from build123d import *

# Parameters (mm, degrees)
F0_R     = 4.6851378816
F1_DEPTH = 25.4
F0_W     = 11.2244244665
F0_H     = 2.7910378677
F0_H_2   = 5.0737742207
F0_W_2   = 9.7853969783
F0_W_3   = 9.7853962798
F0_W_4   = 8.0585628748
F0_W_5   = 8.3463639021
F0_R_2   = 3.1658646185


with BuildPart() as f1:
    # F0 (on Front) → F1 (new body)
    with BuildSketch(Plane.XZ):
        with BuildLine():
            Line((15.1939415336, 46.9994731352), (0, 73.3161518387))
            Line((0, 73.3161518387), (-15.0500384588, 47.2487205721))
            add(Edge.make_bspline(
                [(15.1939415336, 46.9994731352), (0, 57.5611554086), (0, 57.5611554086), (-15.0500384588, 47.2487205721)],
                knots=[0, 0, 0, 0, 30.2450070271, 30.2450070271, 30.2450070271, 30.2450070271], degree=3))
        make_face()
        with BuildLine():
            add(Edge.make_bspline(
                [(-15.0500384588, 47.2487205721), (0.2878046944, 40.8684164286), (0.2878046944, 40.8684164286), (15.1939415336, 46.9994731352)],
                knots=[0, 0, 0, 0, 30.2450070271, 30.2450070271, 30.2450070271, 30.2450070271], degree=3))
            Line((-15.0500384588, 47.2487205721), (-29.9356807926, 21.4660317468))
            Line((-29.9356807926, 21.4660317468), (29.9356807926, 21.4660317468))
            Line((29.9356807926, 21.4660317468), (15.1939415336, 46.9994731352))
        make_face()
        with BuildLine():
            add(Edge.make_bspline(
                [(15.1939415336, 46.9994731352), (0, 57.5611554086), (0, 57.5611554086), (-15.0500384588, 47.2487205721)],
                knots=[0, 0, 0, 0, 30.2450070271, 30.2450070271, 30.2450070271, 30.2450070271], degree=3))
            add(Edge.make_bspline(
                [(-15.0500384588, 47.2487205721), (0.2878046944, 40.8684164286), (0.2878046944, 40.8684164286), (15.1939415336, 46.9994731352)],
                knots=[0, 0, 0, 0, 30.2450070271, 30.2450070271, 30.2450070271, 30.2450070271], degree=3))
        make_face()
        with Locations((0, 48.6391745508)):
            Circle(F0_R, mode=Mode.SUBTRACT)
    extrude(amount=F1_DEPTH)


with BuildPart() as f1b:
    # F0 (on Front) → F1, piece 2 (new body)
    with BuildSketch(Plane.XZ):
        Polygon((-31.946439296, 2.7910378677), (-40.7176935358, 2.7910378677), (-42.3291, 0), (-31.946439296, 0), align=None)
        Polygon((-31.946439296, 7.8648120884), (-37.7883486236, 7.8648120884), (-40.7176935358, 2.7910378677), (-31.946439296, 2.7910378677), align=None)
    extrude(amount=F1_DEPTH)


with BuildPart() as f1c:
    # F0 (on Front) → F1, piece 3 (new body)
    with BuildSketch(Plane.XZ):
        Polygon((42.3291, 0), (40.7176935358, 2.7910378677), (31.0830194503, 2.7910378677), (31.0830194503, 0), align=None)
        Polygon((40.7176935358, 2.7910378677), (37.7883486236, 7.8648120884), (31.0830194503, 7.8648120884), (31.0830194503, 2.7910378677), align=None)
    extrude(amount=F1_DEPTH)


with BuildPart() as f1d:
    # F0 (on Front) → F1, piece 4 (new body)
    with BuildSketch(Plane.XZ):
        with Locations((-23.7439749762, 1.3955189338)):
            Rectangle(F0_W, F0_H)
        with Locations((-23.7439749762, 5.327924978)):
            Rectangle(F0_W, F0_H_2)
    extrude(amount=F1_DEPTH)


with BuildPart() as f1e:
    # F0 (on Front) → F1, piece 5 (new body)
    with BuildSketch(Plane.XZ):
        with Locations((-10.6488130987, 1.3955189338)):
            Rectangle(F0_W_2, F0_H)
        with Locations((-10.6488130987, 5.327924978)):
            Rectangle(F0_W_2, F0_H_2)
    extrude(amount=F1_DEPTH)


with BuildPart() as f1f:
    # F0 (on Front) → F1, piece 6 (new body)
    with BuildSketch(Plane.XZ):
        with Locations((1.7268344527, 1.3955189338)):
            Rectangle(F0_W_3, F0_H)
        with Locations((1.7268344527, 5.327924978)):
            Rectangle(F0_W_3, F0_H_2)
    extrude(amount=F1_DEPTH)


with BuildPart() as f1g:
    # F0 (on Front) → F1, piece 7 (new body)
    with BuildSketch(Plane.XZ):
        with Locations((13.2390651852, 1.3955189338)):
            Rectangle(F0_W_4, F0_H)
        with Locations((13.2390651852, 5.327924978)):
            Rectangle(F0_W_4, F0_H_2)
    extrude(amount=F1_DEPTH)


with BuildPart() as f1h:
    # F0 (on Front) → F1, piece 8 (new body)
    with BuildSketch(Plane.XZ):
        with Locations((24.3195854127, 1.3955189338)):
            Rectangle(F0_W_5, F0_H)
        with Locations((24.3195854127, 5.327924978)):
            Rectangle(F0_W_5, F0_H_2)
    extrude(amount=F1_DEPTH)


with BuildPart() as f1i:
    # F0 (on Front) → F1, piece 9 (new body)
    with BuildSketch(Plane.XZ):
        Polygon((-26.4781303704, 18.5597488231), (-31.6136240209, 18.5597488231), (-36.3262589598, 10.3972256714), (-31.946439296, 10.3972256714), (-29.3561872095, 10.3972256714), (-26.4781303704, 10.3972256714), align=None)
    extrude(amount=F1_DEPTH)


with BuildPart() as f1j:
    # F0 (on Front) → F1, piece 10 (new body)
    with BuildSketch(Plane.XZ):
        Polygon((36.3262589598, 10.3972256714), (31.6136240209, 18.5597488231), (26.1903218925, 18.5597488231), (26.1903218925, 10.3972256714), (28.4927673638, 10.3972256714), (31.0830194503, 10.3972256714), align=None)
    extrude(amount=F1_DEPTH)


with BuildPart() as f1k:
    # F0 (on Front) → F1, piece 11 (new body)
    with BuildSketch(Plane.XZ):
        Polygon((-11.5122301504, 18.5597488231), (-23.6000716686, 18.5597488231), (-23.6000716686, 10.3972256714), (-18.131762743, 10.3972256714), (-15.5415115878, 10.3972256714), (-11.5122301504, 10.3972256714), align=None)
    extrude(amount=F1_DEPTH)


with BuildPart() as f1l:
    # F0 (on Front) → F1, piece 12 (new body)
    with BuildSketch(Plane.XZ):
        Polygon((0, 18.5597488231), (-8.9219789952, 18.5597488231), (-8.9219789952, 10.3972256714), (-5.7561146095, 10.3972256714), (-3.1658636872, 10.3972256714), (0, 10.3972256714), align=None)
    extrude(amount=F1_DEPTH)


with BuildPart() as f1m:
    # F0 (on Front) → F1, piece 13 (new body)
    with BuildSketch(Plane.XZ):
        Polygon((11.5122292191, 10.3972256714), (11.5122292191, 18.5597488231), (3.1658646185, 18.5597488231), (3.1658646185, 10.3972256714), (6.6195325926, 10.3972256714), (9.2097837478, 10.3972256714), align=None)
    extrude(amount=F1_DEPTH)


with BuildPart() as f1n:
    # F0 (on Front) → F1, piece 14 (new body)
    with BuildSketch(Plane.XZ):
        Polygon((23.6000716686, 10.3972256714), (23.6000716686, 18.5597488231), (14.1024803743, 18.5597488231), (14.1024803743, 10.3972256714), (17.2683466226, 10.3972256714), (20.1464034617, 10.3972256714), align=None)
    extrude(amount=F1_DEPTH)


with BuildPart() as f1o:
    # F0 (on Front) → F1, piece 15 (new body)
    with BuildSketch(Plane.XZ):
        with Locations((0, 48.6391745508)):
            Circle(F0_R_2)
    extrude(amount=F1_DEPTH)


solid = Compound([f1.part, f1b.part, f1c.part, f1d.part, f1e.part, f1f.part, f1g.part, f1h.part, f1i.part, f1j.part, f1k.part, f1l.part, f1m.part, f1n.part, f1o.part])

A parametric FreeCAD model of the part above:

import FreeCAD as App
import Part
import Sketcher

V = App.Vector
Q = App.Units.Quantity


def add_polygon(sketch, points):
    """Adds a closed chain of lines whose ends are joined by coincident constraints."""
    first, n = sketch.GeometryCount, len(points)
    for a, b in zip(points, points[1:] + points[:1]):
        sketch.addGeometry(Part.LineSegment(App.Vector(*a, 0), App.Vector(*b, 0)), False)
    for i in range(n):
        sketch.addConstraint(Sketcher.Constraint("Coincident", first + i, 2, first + (i + 1) % n, 1))

doc = App.newDocument("Part")
params = doc.addObject("Spreadsheet::Sheet", "Params")
for row, (alias, value) in enumerate([
    ("pad1_length", "1 in"),
    ("pad2_length", "1 in"),
    ("pad3_length", "1 in"),
    ("pad4_length", "1 in"),
    ("pad5_length", "1 in"),
    ("pad6_length", "1 in"),
    ("pad7_length", "1 in"),
    ("pad8_length", "1 in"),
    ("pad9_length", "1 in"),
    ("pad10_length", "1 in"),
    ("pad11_length", "1 in"),
    ("pad12_length", "1 in"),
    ("pad13_length", "1 in"),
    ("pad14_length", "1 in"),
    ("pad15_length", "1 in"),
], start=1):
    params.set(f"A{row}", alias)
    params.set(f"B{row}", "=" + value)
    params.setAlias(f"B{row}", alias)

body = doc.addObject("PartDesign::Body", "Body")

# Sketch on XZ plane
sketch1 = body.newObject("Sketcher::SketchObject", "Sketch")
sketch1.AttachmentSupport = (doc.getObject("XZ_Plane"), [""])
sketch1.MapMode = "FlatFace"
add_polygon(sketch1, [(15.2, 47), (0, 73.3), (-15.1, 47.2), (-29.9, 21.5), (29.9, 21.5)])  # lines 0-4
sketch1.addGeometry(Part.Circle(V(0, 48.6, 0), V(0, 0, 1), 4.7), False)  # 5
sketch1.addConstraint([
    Sketcher.Constraint("Horizontal", 3),
    Sketcher.Constraint("PointOnObject", 5, 3, -2),
    Sketcher.Constraint("PointOnObject", 0, 2, -2),
    Sketcher.Constraint("Parallel", 1, 2),
    Sketcher.Constraint("Parallel", 0, 4),
    Sketcher.Constraint("Angle", 0, Q("120 deg")),
    Sketcher.Constraint("Angle", 1, Q("-120 deg")),
    Sketcher.Constraint("Diameter", 5, 9.370276),
    Sketcher.Constraint("DistanceX", 3, 1, 3, 2, 59.871362),
    Sketcher.Constraint("DistanceY", 4, 2, 5, 3, 1.639701),
    Sketcher.Constraint("Distance", 4, 29.483479),
    Sketcher.Constraint("DistanceY", -1, 1, 0, 2, 73.316152),
    Sketcher.Constraint("DistanceX", 1, 2, -1, 1, 15.050038),
])
pad1 = body.newObject("PartDesign::Pad", "Pad")
pad1.Profile = sketch1
pad1.setExpression("Length", "Params.pad1_length")
body2 = doc.addObject("PartDesign::Body", "Body001")

# Sketch on XZ plane
sketch2 = body2.newObject("Sketcher::SketchObject", "Sketch001")
sketch2.AttachmentSupport = (doc.getObject("XZ_Plane001"), [""])
sketch2.MapMode = "FlatFace"
add_polygon(sketch2, [(-40.7, 2.8), (-42.3, 0), (-31.9, 0), (-31.9, 7.9), (-37.8, 7.9)])  # lines 0-4
sketch2.addConstraint([
    Sketcher.Constraint("Horizontal", 1),
    Sketcher.Constraint("Vertical", 2),
    Sketcher.Constraint("Horizontal", 3),
    Sketcher.Constraint("PointOnObject", 0, 2, -1),
    Sketcher.Constraint("Parallel", 0, 4),
    Sketcher.Constraint("Angle", 0, Q("-120 deg")),
    Sketcher.Constraint("DistanceX", 0, 2, -1, 1, Q("1.6665 in")),
    Sketcher.Constraint("DistanceX", 1, 1, 1, 2, 10.382661),
    Sketcher.Constraint("DistanceX", 3, 2, 3, 1, 5.841909),
    Sketcher.Constraint("Distance", 4, 5.85869),
])
pad2 = body2.newObject("PartDesign::Pad", "Pad001")
pad2.Profile = sketch2
pad2.setExpression("Length", "Params.pad2_length")
body3 = doc.addObject("PartDesign::Body", "Body002")

# Sketch on XZ plane
sketch3 = body3.newObject("Sketcher::SketchObject", "Sketch002")
sketch3.AttachmentSupport = (doc.getObject("XZ_Plane002"), [""])
sketch3.MapMode = "FlatFace"
add_polygon(sketch3, [(42.3, 0), (40.7, 2.8), (37.8, 7.9), (31.1, 7.9), (31.1, 0)])  # lines 0-4
sketch3.addConstraint([
    Sketcher.Constraint("Horizontal", 2),
    Sketcher.Constraint("Vertical", 3),
    Sketcher.Constraint("Horizontal", 4),
    Sketcher.Constraint("PointOnObject", 3, 2, -1),
    Sketcher.Constraint("Parallel", 0, 1),
    Sketcher.Constraint("Angle", 0, Q("120 deg")),
    Sketcher.Constraint("DistanceX", -1, 1, 4, 2, Q("1.6665 in")),
    Sketcher.Constraint("DistanceX", 2, 2, 2, 1, 6.705329),
    Sketcher.Constraint("DistanceX", 4, 1, 4, 2, 11.246081),
    Sketcher.Constraint("Distance", 1, 5.85869),
])
pad3 = body3.newObject("PartDesign::Pad", "Pad002")
pad3.Profile = sketch3
pad3.setExpression("Length", "Params.pad3_length")
body4 = doc.addObject("PartDesign::Body", "Body003")

# Sketch on XZ plane
sketch4 = body4.newObject("Sketcher::SketchObject", "Sketch003")
sketch4.AttachmentSupport = (doc.getObject("XZ_Plane003"), [""])
sketch4.MapMode = "FlatFace"
add_polygon(sketch4, [(-29, 0), (-18, 0), (-18, 8), (-29, 8)])  # lines 0-3
sketch4.addConstraint([
    Sketcher.Constraint("Horizontal", 0),
    Sketcher.Constraint("Vertical", 1),
    Sketcher.Constraint("Horizontal", 2),
    Sketcher.Constraint("Vertical", 3),
    Sketcher.Constraint("PointOnObject", 0, 2, -1),
    Sketcher.Constraint("DistanceX", 0, 1, 0, 2, 11.224424),
    Sketcher.Constraint("DistanceY", 1, 1, 1, 2, 7.864812),
    Sketcher.Constraint("DistanceX", 0, 2, -1, 1, 18.131763),
])
pad4 = body4.newObject("PartDesign::Pad", "Pad003")
pad4.Profile = sketch4
pad4.setExpression("Length", "Params.pad4_length")
body5 = doc.addObject("PartDesign::Body", "Body004")

# Sketch on XZ plane
sketch5 = body5.newObject("Sketcher::SketchObject", "Sketch004")
sketch5.AttachmentSupport = (doc.getObject("XZ_Plane004"), [""])
sketch5.MapMode = "FlatFace"
add_polygon(sketch5, [(-16, 0), (-6, 0), (-6, 8), (-16, 8)])  # lines 0-3
sketch5.addConstraint([
    Sketcher.Constraint("Horizontal", 0),
    Sketcher.Constraint("Vertical", 1),
    Sketcher.Constraint("Horizontal", 2),
    Sketcher.Constraint("Vertical", 3),
    Sketcher.Constraint("PointOnObject", 0, 2, -1),
    Sketcher.Constraint("DistanceX", 0, 1, 0, 2, 9.785397),
    Sketcher.Constraint("DistanceY", 1, 1, 1, 2, 7.864812),
    Sketcher.Constraint("DistanceX", 2, 2, -1, 1, 15.541512),
])
pad5 = body5.newObject("PartDesign::Pad", "Pad004")
pad5.Profile = sketch5
pad5.setExpression("Length", "Params.pad5_length")
body6 = doc.addObject("PartDesign::Body", "Body005")

# Sketch on XZ plane
sketch6 = body6.newObject("Sketcher::SketchObject", "Sketch005")
sketch6.AttachmentSupport = (doc.getObject("XZ_Plane005"), [""])
sketch6.MapMode = "FlatFace"
add_polygon(sketch6, [(-3, 0), (7, 0), (7, 8), (-3, 8)])  # lines 0-3
sketch6.addConstraint([
    Sketcher.Constraint("Horizontal", 0),
    Sketcher.Constraint("Vertical", 1),
    Sketcher.Constraint("Horizontal", 2),
    Sketcher.Constraint("Vertical", 3),
    Sketcher.Constraint("PointOnObject", 0, 2, -1),
    Sketcher.Constraint("DistanceX", 0, 1, 0, 2, 9.785396),
    Sketcher.Constraint("DistanceY", 1, 1, 1, 2, 7.864812),
    Sketcher.Constraint("DistanceX", -1, 1, 0, 2, 6.619533),
])
pad6 = body6.newObject("PartDesign::Pad", "Pad005")
pad6.Profile = sketch6
pad6.setExpression("Length", "Params.pad6_length")
body7 = doc.addObject("PartDesign::Body", "Body006")

# Sketch on XZ plane
sketch7 = body7.newObject("Sketcher::SketchObject", "Sketch006")
sketch7.AttachmentSupport = (doc.getObject("XZ_Plane006"), [""])
sketch7.MapMode = "FlatFace"
add_polygon(sketch7, [(9, 0), (17, 0), (17, 8), (9, 8)])  # lines 0-3
sketch7.addConstraint([
    Sketcher.Constraint("Horizontal", 0),
    Sketcher.Constraint("Vertical", 1),
    Sketcher.Constraint("Horizontal", 2),
    Sketcher.Constraint("Vertical", 3),
    Sketcher.Constraint("PointOnObject", 0, 2, -1),
    Sketcher.Constraint("DistanceX", 0, 1, 0, 2, 8.058563),
    Sketcher.Constraint("DistanceY", 1, 1, 1, 2, 7.864812),
    Sketcher.Constraint("DistanceX", -1, 1, 0, 2, 17.268347),
])
pad7 = body7.newObject("PartDesign::Pad", "Pad006")
pad7.Profile = sketch7
pad7.setExpression("Length", "Params.pad7_length")
body8 = doc.addObject("PartDesign::Body", "Body007")

# Sketch on XZ plane
sketch8 = body8.newObject("Sketcher::SketchObject", "Sketch007")
sketch8.AttachmentSupport = (doc.getObject("XZ_Plane007"), [""])
sketch8.MapMode = "FlatFace"
add_polygon(sketch8, [(20, 0), (28, 0), (28, 8), (20, 8)])  # lines 0-3
sketch8.addConstraint([
    Sketcher.Constraint("Horizontal", 0),
    Sketcher.Constraint("Vertical", 1),
    Sketcher.Constraint("Horizontal", 2),
    Sketcher.Constraint("Vertical", 3),
    Sketcher.Constraint("PointOnObject", 0, 2, -1),
    Sketcher.Constraint("DistanceX", 0, 1, 0, 2, 8.346364),
    Sketcher.Constraint("DistanceY", 1, 1, 1, 2, 7.864812),
    Sketcher.Constraint("DistanceX", -1, 1, 0, 2, 28.492767),
])
pad8 = body8.newObject("PartDesign::Pad", "Pad007")
pad8.Profile = sketch8
pad8.setExpression("Length", "Params.pad8_length")
body9 = doc.addObject("PartDesign::Body", "Body008")

# Sketch on XZ plane
sketch9 = body9.newObject("Sketcher::SketchObject", "Sketch008")
sketch9.AttachmentSupport = (doc.getObject("XZ_Plane008"), [""])
sketch9.MapMode = "FlatFace"
add_polygon(sketch9, [(-26, 19), (-32, 19), (-36, 10), (-26, 10)])  # lines 0-3
sketch9.addConstraint([
    Sketcher.Constraint("Horizontal", 0),
    Sketcher.Constraint("Horizontal", 2),
    Sketcher.Constraint("Vertical", 3),
    Sketcher.Constraint("Angle", 1, Q("-120 deg")),
    Sketcher.Constraint("DistanceX", 2, 1, 2, 2, 9.848129),
    Sketcher.Constraint("Distance", 1, 9.42527),
    Sketcher.Constraint("DistanceY", -1, 1, 0, 2, 18.559749),
    Sketcher.Constraint("DistanceX", 1, 2, -1, 1, 36.326259),
])
pad9 = body9.newObject("PartDesign::Pad", "Pad008")
pad9.Profile = sketch9
pad9.setExpression("Length", "Params.pad9_length")
body10 = doc.addObject("PartDesign::Body", "Body009")

# Sketch on XZ plane
sketch10 = body10.newObject("Sketcher::SketchObject", "Sketch009")
sketch10.AttachmentSupport = (doc.getObject("XZ_Plane009"), [""])
sketch10.MapMode = "FlatFace"
add_polygon(sketch10, [(36, 10), (32, 19), (26, 19), (26, 10)])  # lines 0-3
sketch10.addConstraint([
    Sketcher.Constraint("Horizontal", 1),
    Sketcher.Constraint("Vertical", 2),
    Sketcher.Constraint("Horizontal", 3),
    Sketcher.Constraint("Angle", 0, Q("120 deg")),
    Sketcher.Constraint("Distance", 0, 9.42527),
    Sketcher.Constraint("DistanceX", 1, 2, 1, 1, 5.423302),
    Sketcher.Constraint("DistanceY", -1, 1, 0, 2, 18.559749),
    Sketcher.Constraint("DistanceX", -1, 1, 1, 2, 26.190322),
])
pad10 = body10.newObject("PartDesign::Pad", "Pad009")
pad10.Profile = sketch10
pad10.setExpression("Length", "Params.pad10_length")
body11 = doc.addObject("PartDesign::Body", "Body010")

# Sketch on XZ plane
sketch11 = body11.newObject("Sketcher::SketchObject", "Sketch010")
sketch11.AttachmentSupport = (doc.getObject("XZ_Plane010"), [""])
sketch11.MapMode = "FlatFace"
add_polygon(sketch11, [(-12, 19), (-24, 19), (-24, 10), (-12, 10)])  # lines 0-3
sketch11.addConstraint([
    Sketcher.Constraint("Horizontal", 0),
    Sketcher.Constraint("Vertical", 1),
    Sketcher.Constraint("Horizontal", 2),
    Sketcher.Constraint("Vertical", 3),
    Sketcher.Constraint("DistanceX", 0, 2, 0, 1, 12.087842),
    Sketcher.Constraint("DistanceY", 1, 2, 1, 1, 8.162523),
    Sketcher.Constraint("DistanceX", 0, 2, -1, 1, 23.600072),
    Sketcher.Constraint("DistanceY", -1, 1, 0, 2, 18.559749),
])
pad11 = body11.newObject("PartDesign::Pad", "Pad010")
pad11.Profile = sketch11
pad11.setExpression("Length", "Params.pad11_length")
body12 = doc.addObject("PartDesign::Body", "Body011")

# Sketch on XZ plane
sketch12 = body12.newObject("Sketcher::SketchObject", "Sketch011")
sketch12.AttachmentSupport = (doc.getObject("XZ_Plane011"), [""])
sketch12.MapMode = "FlatFace"
add_polygon(sketch12, [(0, 19), (-9, 19), (-9, 10), (0, 10)])  # lines 0-3
sketch12.addConstraint([
    Sketcher.Constraint("Horizontal", 0),
    Sketcher.Constraint("Vertical", 1),
    Sketcher.Constraint("Horizontal", 2),
    Sketcher.Constraint("Vertical", 3),
    Sketcher.Constraint("PointOnObject", 2, 2, -2),
    Sketcher.Constraint("DistanceX", 0, 2, 0, 1, 8.921979),
    Sketcher.Constraint("DistanceY", 1, 2, 1, 1, 8.162523),
    Sketcher.Constraint("DistanceY", -1, 1, 0, 2, 18.559749),
])
pad12 = body12.newObject("PartDesign::Pad", "Pad011")
pad12.Profile = sketch12
pad12.setExpression("Length", "Params.pad12_length")
body13 = doc.addObject("PartDesign::Body", "Body012")

# Sketch on XZ plane
sketch13 = body13.newObject("Sketcher::SketchObject", "Sketch012")
sketch13.AttachmentSupport = (doc.getObject("XZ_Plane012"), [""])
sketch13.MapMode = "FlatFace"
add_polygon(sketch13, [(12, 10), (12, 19), (3, 19), (3, 10)])  # lines 0-3
sketch13.addConstraint([
    Sketcher.Constraint("Vertical", 0),
    Sketcher.Constraint("Horizontal", 1),
    Sketcher.Constraint("Vertical", 2),
    Sketcher.Constraint("Horizontal", 3),
    Sketcher.Constraint("DistanceX", 1, 2, 1, 1, 8.346365),
    Sketcher.Constraint("DistanceY", 0, 1, 0, 2, 8.162523),
    Sketcher.Constraint("DistanceX", -1, 1, 0, 2, 11.512229),
    Sketcher.Constraint("DistanceY", -1, 1, 0, 2, 18.559749),
])
pad13 = body13.newObject("PartDesign::Pad", "Pad012")
pad13.Profile = sketch13
pad13.setExpression("Length", "Params.pad13_length")
body14 = doc.addObject("PartDesign::Body", "Body013")

# Sketch on XZ plane
sketch14 = body14.newObject("Sketcher::SketchObject", "Sketch013")
sketch14.AttachmentSupport = (doc.getObject("XZ_Plane013"), [""])
sketch14.MapMode = "FlatFace"
add_polygon(sketch14, [(24, 10), (24, 19), (14, 19), (14, 10)])  # lines 0-3
sketch14.addConstraint([
    Sketcher.Constraint("Vertical", 0),
    Sketcher.Constraint("Horizontal", 1),
    Sketcher.Constraint("Vertical", 2),
    Sketcher.Constraint("Horizontal", 3),
    Sketcher.Constraint("DistanceX", 1, 2, 1, 1, 9.497591),
    Sketcher.Constraint("DistanceY", 0, 1, 0, 2, 8.162523),
    Sketcher.Constraint("DistanceX", -1, 1, 0, 2, 23.600072),
    Sketcher.Constraint("DistanceY", -1, 1, 0, 2, 18.559749),
])
pad14 = body14.newObject("PartDesign::Pad", "Pad013")
pad14.Profile = sketch14
pad14.setExpression("Length", "Params.pad14_length")
body15 = doc.addObject("PartDesign::Body", "Body014")

# Sketch on XZ plane
sketch15 = body15.newObject("Sketcher::SketchObject", "Sketch014")
sketch15.AttachmentSupport = (doc.getObject("XZ_Plane014"), [""])
sketch15.MapMode = "FlatFace"
sketch15.addGeometry(Part.Circle(V(0, 48.6, 0), V(0, 0, 1), 3.2), False)
sketch15.addConstraint([
    Sketcher.Constraint("PointOnObject", 0, 3, -2),
    Sketcher.Constraint("Diameter", 0, 6.331729),
    Sketcher.Constraint("DistanceY", -1, 1, 0, 3, 48.639175),
])
pad15 = body15.newObject("PartDesign::Pad", "Pad014")
pad15.Profile = sketch15
pad15.setExpression("Length", "Params.pad15_length")

doc.recompute()
